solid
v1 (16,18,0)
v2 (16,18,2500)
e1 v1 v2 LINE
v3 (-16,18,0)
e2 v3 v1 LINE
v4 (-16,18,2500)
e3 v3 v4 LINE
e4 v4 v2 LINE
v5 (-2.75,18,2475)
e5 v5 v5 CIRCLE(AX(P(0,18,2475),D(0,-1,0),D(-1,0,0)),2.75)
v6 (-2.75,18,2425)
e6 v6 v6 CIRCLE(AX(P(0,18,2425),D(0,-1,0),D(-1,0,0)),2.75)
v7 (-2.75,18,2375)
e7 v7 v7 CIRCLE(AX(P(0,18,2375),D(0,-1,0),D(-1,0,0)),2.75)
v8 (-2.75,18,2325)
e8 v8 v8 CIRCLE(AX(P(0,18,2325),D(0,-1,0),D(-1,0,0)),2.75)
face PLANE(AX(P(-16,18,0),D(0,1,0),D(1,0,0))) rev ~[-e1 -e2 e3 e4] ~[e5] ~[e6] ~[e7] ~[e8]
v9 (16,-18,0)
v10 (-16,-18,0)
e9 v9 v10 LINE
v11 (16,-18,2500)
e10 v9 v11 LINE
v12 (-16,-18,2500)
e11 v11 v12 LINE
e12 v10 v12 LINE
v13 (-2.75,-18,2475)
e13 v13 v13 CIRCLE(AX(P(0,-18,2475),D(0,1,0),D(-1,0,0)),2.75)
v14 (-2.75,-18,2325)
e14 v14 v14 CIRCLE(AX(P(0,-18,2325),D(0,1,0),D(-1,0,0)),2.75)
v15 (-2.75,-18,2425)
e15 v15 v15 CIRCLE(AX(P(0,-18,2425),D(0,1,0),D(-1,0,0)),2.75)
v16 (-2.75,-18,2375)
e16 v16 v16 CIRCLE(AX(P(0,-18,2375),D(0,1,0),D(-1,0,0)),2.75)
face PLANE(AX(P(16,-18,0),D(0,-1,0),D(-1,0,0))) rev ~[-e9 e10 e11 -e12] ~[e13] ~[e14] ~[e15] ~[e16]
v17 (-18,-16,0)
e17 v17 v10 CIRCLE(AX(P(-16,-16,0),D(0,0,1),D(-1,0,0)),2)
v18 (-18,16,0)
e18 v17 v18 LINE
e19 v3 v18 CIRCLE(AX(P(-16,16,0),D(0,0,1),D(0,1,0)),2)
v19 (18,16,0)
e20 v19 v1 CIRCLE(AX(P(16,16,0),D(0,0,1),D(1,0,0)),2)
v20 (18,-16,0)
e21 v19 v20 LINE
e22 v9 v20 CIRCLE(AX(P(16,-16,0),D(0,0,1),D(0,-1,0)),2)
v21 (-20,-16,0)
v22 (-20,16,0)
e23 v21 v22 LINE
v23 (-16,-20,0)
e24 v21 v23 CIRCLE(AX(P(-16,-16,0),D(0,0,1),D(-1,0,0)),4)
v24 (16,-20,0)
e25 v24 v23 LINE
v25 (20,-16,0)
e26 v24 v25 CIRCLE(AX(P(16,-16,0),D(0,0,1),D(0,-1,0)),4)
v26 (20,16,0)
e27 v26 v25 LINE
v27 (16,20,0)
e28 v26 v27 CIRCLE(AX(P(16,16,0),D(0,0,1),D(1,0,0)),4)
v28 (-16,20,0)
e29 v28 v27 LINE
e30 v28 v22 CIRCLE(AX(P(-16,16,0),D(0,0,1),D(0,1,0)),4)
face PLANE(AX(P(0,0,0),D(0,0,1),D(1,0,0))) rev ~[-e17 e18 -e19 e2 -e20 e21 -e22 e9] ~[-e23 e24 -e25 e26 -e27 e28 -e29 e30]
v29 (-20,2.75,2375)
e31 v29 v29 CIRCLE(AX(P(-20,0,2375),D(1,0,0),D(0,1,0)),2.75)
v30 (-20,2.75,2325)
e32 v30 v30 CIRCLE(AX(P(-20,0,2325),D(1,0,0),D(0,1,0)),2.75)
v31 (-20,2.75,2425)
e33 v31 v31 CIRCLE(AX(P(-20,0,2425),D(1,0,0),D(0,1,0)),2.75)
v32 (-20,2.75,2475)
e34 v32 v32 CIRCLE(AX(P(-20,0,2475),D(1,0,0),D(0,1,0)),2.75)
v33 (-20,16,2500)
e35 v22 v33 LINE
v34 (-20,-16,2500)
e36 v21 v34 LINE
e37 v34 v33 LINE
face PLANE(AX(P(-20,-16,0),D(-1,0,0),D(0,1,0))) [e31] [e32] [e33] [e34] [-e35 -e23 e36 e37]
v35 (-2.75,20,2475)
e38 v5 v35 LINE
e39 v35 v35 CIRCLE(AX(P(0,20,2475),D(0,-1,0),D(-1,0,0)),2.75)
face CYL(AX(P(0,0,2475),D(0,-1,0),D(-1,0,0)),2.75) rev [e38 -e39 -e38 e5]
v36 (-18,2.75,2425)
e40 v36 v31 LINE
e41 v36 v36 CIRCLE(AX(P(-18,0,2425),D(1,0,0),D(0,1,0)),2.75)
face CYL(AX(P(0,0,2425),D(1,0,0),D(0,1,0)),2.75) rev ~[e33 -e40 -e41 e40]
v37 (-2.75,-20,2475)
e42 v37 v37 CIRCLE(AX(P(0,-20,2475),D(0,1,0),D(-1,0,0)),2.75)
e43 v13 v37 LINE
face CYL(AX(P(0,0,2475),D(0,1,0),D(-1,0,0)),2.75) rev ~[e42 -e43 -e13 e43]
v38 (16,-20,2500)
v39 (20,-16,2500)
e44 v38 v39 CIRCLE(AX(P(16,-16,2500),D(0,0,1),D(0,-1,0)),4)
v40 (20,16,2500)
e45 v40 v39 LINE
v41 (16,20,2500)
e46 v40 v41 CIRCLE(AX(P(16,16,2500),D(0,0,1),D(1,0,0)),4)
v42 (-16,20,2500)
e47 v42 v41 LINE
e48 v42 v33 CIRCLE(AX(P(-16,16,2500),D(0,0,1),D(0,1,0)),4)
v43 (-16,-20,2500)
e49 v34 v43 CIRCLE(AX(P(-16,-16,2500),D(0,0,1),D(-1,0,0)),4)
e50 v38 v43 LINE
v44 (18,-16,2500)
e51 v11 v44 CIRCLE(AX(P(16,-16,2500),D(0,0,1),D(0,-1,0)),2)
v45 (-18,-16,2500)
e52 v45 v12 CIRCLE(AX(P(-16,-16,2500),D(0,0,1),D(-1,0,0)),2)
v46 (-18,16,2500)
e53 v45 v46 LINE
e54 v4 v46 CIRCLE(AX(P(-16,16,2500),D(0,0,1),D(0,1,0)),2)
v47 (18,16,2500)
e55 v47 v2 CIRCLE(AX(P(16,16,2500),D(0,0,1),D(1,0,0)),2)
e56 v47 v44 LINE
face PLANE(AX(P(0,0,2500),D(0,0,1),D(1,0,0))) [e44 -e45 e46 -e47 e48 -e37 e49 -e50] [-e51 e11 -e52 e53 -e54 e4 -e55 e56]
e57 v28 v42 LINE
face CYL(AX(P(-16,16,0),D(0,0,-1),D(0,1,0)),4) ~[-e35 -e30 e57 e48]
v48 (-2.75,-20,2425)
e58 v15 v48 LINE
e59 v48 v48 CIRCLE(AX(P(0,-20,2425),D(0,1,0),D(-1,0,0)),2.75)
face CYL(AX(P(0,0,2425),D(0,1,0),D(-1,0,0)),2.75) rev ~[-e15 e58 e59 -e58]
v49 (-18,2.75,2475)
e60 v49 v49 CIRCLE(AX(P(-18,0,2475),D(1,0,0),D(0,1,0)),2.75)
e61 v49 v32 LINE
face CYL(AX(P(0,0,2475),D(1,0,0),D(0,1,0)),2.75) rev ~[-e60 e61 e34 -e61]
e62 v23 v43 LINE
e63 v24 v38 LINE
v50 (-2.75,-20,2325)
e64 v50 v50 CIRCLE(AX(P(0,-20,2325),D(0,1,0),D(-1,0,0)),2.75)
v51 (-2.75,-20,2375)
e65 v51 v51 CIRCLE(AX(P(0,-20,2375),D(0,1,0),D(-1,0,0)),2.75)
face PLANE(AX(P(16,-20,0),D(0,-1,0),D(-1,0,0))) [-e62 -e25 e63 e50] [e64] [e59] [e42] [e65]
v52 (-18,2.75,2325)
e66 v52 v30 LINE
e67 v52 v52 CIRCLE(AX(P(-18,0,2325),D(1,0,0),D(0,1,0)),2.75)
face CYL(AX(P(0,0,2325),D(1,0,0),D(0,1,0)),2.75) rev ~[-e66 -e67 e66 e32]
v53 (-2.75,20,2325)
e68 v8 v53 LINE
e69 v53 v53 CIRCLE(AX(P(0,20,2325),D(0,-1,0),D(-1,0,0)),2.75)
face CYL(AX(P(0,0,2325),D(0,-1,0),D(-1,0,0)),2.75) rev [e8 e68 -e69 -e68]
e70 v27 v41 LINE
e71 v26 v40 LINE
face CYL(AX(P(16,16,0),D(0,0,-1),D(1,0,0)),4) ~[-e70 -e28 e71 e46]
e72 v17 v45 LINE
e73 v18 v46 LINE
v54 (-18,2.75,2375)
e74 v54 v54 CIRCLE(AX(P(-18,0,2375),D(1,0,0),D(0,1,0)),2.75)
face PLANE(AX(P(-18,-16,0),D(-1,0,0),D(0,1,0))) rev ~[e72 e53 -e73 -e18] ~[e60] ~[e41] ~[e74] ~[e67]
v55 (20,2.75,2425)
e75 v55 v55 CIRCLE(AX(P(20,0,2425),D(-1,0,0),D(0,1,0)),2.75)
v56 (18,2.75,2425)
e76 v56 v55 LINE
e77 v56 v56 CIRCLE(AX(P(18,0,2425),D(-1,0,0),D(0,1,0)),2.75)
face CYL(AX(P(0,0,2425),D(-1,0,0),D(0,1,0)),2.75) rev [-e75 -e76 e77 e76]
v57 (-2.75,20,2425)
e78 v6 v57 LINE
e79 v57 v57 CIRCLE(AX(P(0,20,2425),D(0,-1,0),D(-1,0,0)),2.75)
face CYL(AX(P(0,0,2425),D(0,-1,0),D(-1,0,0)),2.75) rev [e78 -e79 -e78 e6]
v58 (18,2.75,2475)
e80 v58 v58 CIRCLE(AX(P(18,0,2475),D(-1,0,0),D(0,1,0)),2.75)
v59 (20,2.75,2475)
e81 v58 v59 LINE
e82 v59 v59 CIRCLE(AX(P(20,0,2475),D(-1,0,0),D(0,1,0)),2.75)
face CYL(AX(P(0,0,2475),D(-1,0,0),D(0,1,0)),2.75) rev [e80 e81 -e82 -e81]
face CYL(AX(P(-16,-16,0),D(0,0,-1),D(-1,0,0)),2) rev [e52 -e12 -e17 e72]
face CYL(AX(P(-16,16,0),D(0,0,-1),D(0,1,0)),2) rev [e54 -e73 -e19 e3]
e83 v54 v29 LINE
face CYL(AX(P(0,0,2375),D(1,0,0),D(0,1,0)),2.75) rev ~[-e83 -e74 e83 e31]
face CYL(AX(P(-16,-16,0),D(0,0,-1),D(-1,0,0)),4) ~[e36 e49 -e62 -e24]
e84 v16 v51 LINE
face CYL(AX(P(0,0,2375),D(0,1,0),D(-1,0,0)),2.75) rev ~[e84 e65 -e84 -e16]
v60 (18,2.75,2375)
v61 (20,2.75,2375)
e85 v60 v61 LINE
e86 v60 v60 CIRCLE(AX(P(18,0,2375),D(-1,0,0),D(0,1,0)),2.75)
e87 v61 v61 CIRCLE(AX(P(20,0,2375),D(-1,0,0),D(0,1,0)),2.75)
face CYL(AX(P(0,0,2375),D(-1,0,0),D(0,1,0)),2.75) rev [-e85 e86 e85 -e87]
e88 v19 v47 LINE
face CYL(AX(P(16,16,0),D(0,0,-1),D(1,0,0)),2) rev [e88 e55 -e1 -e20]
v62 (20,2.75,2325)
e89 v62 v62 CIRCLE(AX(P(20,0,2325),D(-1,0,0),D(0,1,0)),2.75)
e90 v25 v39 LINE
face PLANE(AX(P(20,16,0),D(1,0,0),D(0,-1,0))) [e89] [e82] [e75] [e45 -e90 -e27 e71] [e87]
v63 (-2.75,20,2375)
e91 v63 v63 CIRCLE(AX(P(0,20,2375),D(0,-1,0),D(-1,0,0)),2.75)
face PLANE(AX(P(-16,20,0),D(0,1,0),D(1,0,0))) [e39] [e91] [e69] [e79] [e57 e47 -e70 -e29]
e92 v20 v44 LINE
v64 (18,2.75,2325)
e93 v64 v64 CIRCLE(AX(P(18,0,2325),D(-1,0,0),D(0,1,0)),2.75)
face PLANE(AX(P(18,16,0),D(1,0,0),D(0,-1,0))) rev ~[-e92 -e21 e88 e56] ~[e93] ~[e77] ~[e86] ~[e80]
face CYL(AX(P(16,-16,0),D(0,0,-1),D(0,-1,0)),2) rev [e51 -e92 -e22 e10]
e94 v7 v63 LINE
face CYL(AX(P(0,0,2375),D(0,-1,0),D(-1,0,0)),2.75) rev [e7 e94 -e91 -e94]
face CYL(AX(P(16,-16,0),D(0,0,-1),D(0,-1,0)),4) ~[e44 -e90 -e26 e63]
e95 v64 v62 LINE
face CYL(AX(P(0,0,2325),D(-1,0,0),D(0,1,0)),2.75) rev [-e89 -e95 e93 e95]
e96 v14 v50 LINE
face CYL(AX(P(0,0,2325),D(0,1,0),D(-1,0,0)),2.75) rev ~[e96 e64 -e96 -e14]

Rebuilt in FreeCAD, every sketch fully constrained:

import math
import FreeCAD as App
import Part
import Sketcher

V = App.Vector
Q = App.Units.Quantity

doc = App.newDocument("Part")
body = doc.addObject("PartDesign::Body", "Body")

sketch1 = doc.addObject("Sketcher::SketchObject", "Sketch")
body.addObject(sketch1)
sketch1.AttachmentSupport = (doc.XY_Plane, [""])
sketch1.MapMode = "FlatFace"
sketch1.addGeometry(Part.LineSegment(V(-20, 16, 0), V(-20, -16, 0)), False)
sketch1.addGeometry(Part.ArcOfCircle(Part.Circle(V(-16, -16, 0), V(0, 0, 1), 4), math.radians(180), math.radians(270)), False)
sketch1.addGeometry(Part.LineSegment(V(-16, -20, 0), V(16, -20, 0)), False)
sketch1.addGeometry(Part.ArcOfCircle(Part.Circle(V(16, -16, 0), V(0, 0, 1), 4), math.radians(-90), math.radians(0)), False)
sketch1.addGeometry(Part.LineSegment(V(20, -16, 0), V(20, 16, 0)), False)
sketch1.addGeometry(Part.ArcOfCircle(Part.Circle(V(16, 16, 0), V(0, 0, 1), 4), math.radians(0), math.radians(90)), False)
sketch1.addGeometry(Part.LineSegment(V(16, 20, 0), V(-16, 20, 0)), False)
sketch1.addGeometry(Part.ArcOfCircle(Part.Circle(V(-16, 16, 0), V(0, 0, 1), 4), math.radians(90), math.radians(180)), False)
sketch1.addGeometry(Part.ArcOfCircle(Part.Circle(V(-16, 16, 0), V(0, 0, 1), 2), math.radians(90), math.radians(180)), False)
sketch1.addGeometry(Part.LineSegment(V(-16, 18, 0), V(16, 18, 0)), False)
sketch1.addGeometry(Part.ArcOfCircle(Part.Circle(V(16, 16, 0), V(0, 0, 1), 2), math.radians(0), math.radians(90)), False)
sketch1.addGeometry(Part.LineSegment(V(18, 16, 0), V(18, -16, 0)), False)
sketch1.addGeometry(Part.ArcOfCircle(Part.Circle(V(16, -16, 0), V(0, 0, 1), 2), math.radians(-90), math.radians(0)), False)
sketch1.addGeometry(Part.LineSegment(V(16, -18, 0), V(-16, -18, 0)), False)
sketch1.addGeometry(Part.ArcOfCircle(Part.Circle(V(-16, -16, 0), V(0, 0, 1), 2), math.radians(180), math.radians(270)), False)
sketch1.addGeometry(Part.LineSegment(V(-18, -16, 0), V(-18, 16, 0)), False)
sketch1.addConstraint(Sketcher.Constraint("Tangent", 0, 2, 1, 1))
sketch1.addConstraint(Sketcher.Constraint("Tangent", 1, 2, 2, 1))
sketch1.addConstraint(Sketcher.Constraint("Tangent", 2, 2, 3, 1))
sketch1.addConstraint(Sketcher.Constraint("Tangent", 3, 2, 4, 1))
sketch1.addConstraint(Sketcher.Constraint("Tangent", 4, 2, 5, 1))
sketch1.addConstraint(Sketcher.Constraint("Tangent", 5, 2, 6, 1))
sketch1.addConstraint(Sketcher.Constraint("Tangent", 6, 2, 7, 1))
sketch1.addConstraint(Sketcher.Constraint("Tangent", 7, 2, 0, 1))
sketch1.addConstraint(Sketcher.Constraint("Tangent", 8, 1, 9, 1))
sketch1.addConstraint(Sketcher.Constraint("Tangent", 9, 2, 10, 2))
sketch1.addConstraint(Sketcher.Constraint("Tangent", 10, 1, 11, 1))
sketch1.addConstraint(Sketcher.Constraint("Tangent", 11, 2, 12, 2))
sketch1.addConstraint(Sketcher.Constraint("Tangent", 12, 1, 13, 1))
sketch1.addConstraint(Sketcher.Constraint("Tangent", 13, 2, 14, 2))
sketch1.addConstraint(Sketcher.Constraint("Tangent", 14, 1, 15, 1))
sketch1.addConstraint(Sketcher.Constraint("Tangent", 15, 2, 8, 2))
sketch1.addConstraint(Sketcher.Constraint("Vertical", 0))
sketch1.addConstraint(Sketcher.Constraint("Horizontal", 2))
sketch1.addConstraint(Sketcher.Constraint("Vertical", 4))
sketch1.addConstraint(Sketcher.Constraint("Horizontal", 6))
sketch1.addConstraint(Sketcher.Constraint("Horizontal", 9))
sketch1.addConstraint(Sketcher.Constraint("Vertical", 11))
sketch1.addConstraint(Sketcher.Constraint("Horizontal", 13))
sketch1.addConstraint(Sketcher.Constraint("Vertical", 15))
sketch1.addConstraint(Sketcher.Constraint("Coincident", 8, 3, 7, 3))
sketch1.addConstraint(Sketcher.Constraint("Coincident", 10, 3, 5, 3))
sketch1.addConstraint(Sketcher.Constraint("Coincident", 12, 3, 3, 3))
sketch1.addConstraint(Sketcher.Constraint("Equal", 1, 3))
sketch1.addConstraint(Sketcher.Constraint("Equal", 3, 5))
sketch1.addConstraint(Sketcher.Constraint("Equal", 5, 7))
sketch1.addConstraint(Sketcher.Constraint("Equal", 12, 14))
sketch1.addConstraint(Sketcher.Constraint("Symmetric", 1, 3, 5, 3, -1, 1))
sketch1.addConstraint(Sketcher.Constraint("Equal", 13, 0))
sketch1.addConstraint(Sketcher.Constraint("Radius", 1, Q("4 mm")))
sketch1.addConstraint(Sketcher.Constraint("Radius", 8, Q("2 mm")))
sketch1.addConstraint(Sketcher.Constraint("DistanceX", 0, 2, -1, 1, Q("20 mm")))
pad1 = doc.addObject("PartDesign::Pad", "Pad")
body.addObject(pad1)
pad1.Profile = sketch1
pad1.Length = 2500

sketch2 = doc.addObject("Sketcher::SketchObject", "Sketch001")
body.addObject(sketch2)
sketch2.AttachmentSupport = (doc.YZ_Plane, [""])
sketch2.MapMode = "FlatFace"
sketch2.addGeometry(Part.Circle(V(0, 2325, 0), V(0, 0, 1), 2.75), False)
sketch2.addGeometry(Part.Circle(V(0, 2375, 0), V(0, 0, 1), 2.75), False)
sketch2.addGeometry(Part.Circle(V(0, 2475, 0), V(0, 0, 1), 2.75), False)
sketch2.addGeometry(Part.Circle(V(0, 2425, 0), V(0, 0, 1), 2.75), False)
sketch2.addConstraint(Sketcher.Constraint("Equal", 0, 1))
sketch2.addConstraint(Sketcher.Constraint("Equal", 1, 2))
sketch2.addConstraint(Sketcher.Constraint("Equal", 2, 3))
sketch2.addConstraint(Sketcher.Constraint("PointOnObject", 0, 3, -2))
sketch2.addConstraint(Sketcher.Constraint("PointOnObject", 1, 3, -2))
sketch2.addConstraint(Sketcher.Constraint("PointOnObject", 2, 3, -2))
sketch2.addConstraint(Sketcher.Constraint("PointOnObject", 3, 3, -2))
sketch2.addConstraint(Sketcher.Constraint("Diameter", 0, Q("5.5 mm")))
sketch2.addConstraint(Sketcher.Constraint("DistanceY", 0, 3, 1, 3, Q("50 mm")))
sketch2.addConstraint(Sketcher.Constraint("DistanceY", 1, 3, 3, 3, Q("50 mm")))
sketch2.addConstraint(Sketcher.Constraint("DistanceY", 3, 3, 2, 3, Q("50 mm")))
sketch2.addConstraint(Sketcher.Constraint("DistanceY", -1, 1, 0, 3, Q("2325 mm")))
pocket1 = doc.addObject("PartDesign::Pocket", "Pocket")
body.addObject(pocket1)
pocket1.Profile = sketch2
pocket1.Type = "ThroughAll"
pocket1.Midplane = True
doc.recompute()

polarpattern = doc.addObject("PartDesign::PolarPattern", "PolarPattern")
body.addObject(polarpattern)
polarpattern.Originals = [pocket1]
polarpattern.Axis = (doc.Z_Axis, [""])
polarpattern.Angle = 90
polarpattern.Occurrences = 2
body.Tip = polarpattern

doc.recompute()
